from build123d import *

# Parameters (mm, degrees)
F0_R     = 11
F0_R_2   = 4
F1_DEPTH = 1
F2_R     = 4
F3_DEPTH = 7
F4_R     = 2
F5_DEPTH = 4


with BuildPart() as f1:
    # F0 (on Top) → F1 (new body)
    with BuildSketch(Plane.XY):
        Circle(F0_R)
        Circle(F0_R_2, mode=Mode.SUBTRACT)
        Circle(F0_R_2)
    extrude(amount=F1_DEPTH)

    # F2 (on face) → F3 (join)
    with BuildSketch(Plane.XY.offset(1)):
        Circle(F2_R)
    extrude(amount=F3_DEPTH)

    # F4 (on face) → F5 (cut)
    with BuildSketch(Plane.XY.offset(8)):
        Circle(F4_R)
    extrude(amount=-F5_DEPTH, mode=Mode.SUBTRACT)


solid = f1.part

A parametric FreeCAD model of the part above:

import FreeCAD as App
import Part
import Sketcher
from FreeCAD import Vector

doc = App.newDocument("Part")
body = doc.addObject("PartDesign::Body", "Body")

# Sketch on XY plane
sketch1 = doc.addObject("Sketcher::SketchObject", "Sketch")
body.addObject(sketch1)
sketch1.AttachmentSupport = (doc.XY_Plane, [""])
sketch1.MapMode = "FlatFace"
sketch1.addGeometry(Part.Circle(Vector(0, 0, 0), Vector(0, 0, 1), 11), False)
sketch1.addConstraint(Sketcher.Constraint("Coincident", 0, 3, -1, 1))
sketch1.addConstraint(Sketcher.Constraint("Diameter", 0, 22.0))
pad1 = doc.addObject("PartDesign::Pad", "Pad")
body.addObject(pad1)
pad1.Profile = sketch1
pad1.Length = 1

# Sketch on XY plane
sketch2 = doc.addObject("Sketcher::SketchObject", "Sketch001")
body.addObject(sketch2)
sketch2.AttachmentSupport = (doc.XY_Plane, [""])
sketch2.MapMode = "FlatFace"
sketch2.AttachmentOffset = App.Placement(Vector(0, 0, 1), App.Rotation())
sketch2.addGeometry(Part.Circle(Vector(0, 0, 0), Vector(0, 0, 1), 4), False)
sketch2.addConstraint(Sketcher.Constraint("Coincident", 0, 3, -1, 1))
sketch2.addConstraint(Sketcher.Constraint("Diameter", 0, 8.0))
pad2 = doc.addObject("PartDesign::Pad", "Pad001")
body.addObject(pad2)
pad2.Profile = sketch2
pad2.Length = 7

# Sketch on XY plane
sketch3 = doc.addObject("Sketcher::SketchObject", "Sketch002")
body.addObject(sketch3)
sketch3.AttachmentSupport = (doc.XY_Plane, [""])
sketch3.MapMode = "FlatFace"
sketch3.AttachmentOffset = App.Placement(Vector(0, 0, 8), App.Rotation())
sketch3.addGeometry(Part.Circle(Vector(0, 0, 0), Vector(0, 0, 1), 2), False)
sketch3.addConstraint(Sketcher.Constraint("Coincident", 0, 3, -1, 1))
sketch3.addConstraint(Sketcher.Constraint("Diameter", 0, 4.0))
pocket1 = doc.addObject("PartDesign::Pocket", "Pocket")
body.addObject(pocket1)
pocket1.Profile = sketch3
pocket1.Length = 4

doc.recompute()
